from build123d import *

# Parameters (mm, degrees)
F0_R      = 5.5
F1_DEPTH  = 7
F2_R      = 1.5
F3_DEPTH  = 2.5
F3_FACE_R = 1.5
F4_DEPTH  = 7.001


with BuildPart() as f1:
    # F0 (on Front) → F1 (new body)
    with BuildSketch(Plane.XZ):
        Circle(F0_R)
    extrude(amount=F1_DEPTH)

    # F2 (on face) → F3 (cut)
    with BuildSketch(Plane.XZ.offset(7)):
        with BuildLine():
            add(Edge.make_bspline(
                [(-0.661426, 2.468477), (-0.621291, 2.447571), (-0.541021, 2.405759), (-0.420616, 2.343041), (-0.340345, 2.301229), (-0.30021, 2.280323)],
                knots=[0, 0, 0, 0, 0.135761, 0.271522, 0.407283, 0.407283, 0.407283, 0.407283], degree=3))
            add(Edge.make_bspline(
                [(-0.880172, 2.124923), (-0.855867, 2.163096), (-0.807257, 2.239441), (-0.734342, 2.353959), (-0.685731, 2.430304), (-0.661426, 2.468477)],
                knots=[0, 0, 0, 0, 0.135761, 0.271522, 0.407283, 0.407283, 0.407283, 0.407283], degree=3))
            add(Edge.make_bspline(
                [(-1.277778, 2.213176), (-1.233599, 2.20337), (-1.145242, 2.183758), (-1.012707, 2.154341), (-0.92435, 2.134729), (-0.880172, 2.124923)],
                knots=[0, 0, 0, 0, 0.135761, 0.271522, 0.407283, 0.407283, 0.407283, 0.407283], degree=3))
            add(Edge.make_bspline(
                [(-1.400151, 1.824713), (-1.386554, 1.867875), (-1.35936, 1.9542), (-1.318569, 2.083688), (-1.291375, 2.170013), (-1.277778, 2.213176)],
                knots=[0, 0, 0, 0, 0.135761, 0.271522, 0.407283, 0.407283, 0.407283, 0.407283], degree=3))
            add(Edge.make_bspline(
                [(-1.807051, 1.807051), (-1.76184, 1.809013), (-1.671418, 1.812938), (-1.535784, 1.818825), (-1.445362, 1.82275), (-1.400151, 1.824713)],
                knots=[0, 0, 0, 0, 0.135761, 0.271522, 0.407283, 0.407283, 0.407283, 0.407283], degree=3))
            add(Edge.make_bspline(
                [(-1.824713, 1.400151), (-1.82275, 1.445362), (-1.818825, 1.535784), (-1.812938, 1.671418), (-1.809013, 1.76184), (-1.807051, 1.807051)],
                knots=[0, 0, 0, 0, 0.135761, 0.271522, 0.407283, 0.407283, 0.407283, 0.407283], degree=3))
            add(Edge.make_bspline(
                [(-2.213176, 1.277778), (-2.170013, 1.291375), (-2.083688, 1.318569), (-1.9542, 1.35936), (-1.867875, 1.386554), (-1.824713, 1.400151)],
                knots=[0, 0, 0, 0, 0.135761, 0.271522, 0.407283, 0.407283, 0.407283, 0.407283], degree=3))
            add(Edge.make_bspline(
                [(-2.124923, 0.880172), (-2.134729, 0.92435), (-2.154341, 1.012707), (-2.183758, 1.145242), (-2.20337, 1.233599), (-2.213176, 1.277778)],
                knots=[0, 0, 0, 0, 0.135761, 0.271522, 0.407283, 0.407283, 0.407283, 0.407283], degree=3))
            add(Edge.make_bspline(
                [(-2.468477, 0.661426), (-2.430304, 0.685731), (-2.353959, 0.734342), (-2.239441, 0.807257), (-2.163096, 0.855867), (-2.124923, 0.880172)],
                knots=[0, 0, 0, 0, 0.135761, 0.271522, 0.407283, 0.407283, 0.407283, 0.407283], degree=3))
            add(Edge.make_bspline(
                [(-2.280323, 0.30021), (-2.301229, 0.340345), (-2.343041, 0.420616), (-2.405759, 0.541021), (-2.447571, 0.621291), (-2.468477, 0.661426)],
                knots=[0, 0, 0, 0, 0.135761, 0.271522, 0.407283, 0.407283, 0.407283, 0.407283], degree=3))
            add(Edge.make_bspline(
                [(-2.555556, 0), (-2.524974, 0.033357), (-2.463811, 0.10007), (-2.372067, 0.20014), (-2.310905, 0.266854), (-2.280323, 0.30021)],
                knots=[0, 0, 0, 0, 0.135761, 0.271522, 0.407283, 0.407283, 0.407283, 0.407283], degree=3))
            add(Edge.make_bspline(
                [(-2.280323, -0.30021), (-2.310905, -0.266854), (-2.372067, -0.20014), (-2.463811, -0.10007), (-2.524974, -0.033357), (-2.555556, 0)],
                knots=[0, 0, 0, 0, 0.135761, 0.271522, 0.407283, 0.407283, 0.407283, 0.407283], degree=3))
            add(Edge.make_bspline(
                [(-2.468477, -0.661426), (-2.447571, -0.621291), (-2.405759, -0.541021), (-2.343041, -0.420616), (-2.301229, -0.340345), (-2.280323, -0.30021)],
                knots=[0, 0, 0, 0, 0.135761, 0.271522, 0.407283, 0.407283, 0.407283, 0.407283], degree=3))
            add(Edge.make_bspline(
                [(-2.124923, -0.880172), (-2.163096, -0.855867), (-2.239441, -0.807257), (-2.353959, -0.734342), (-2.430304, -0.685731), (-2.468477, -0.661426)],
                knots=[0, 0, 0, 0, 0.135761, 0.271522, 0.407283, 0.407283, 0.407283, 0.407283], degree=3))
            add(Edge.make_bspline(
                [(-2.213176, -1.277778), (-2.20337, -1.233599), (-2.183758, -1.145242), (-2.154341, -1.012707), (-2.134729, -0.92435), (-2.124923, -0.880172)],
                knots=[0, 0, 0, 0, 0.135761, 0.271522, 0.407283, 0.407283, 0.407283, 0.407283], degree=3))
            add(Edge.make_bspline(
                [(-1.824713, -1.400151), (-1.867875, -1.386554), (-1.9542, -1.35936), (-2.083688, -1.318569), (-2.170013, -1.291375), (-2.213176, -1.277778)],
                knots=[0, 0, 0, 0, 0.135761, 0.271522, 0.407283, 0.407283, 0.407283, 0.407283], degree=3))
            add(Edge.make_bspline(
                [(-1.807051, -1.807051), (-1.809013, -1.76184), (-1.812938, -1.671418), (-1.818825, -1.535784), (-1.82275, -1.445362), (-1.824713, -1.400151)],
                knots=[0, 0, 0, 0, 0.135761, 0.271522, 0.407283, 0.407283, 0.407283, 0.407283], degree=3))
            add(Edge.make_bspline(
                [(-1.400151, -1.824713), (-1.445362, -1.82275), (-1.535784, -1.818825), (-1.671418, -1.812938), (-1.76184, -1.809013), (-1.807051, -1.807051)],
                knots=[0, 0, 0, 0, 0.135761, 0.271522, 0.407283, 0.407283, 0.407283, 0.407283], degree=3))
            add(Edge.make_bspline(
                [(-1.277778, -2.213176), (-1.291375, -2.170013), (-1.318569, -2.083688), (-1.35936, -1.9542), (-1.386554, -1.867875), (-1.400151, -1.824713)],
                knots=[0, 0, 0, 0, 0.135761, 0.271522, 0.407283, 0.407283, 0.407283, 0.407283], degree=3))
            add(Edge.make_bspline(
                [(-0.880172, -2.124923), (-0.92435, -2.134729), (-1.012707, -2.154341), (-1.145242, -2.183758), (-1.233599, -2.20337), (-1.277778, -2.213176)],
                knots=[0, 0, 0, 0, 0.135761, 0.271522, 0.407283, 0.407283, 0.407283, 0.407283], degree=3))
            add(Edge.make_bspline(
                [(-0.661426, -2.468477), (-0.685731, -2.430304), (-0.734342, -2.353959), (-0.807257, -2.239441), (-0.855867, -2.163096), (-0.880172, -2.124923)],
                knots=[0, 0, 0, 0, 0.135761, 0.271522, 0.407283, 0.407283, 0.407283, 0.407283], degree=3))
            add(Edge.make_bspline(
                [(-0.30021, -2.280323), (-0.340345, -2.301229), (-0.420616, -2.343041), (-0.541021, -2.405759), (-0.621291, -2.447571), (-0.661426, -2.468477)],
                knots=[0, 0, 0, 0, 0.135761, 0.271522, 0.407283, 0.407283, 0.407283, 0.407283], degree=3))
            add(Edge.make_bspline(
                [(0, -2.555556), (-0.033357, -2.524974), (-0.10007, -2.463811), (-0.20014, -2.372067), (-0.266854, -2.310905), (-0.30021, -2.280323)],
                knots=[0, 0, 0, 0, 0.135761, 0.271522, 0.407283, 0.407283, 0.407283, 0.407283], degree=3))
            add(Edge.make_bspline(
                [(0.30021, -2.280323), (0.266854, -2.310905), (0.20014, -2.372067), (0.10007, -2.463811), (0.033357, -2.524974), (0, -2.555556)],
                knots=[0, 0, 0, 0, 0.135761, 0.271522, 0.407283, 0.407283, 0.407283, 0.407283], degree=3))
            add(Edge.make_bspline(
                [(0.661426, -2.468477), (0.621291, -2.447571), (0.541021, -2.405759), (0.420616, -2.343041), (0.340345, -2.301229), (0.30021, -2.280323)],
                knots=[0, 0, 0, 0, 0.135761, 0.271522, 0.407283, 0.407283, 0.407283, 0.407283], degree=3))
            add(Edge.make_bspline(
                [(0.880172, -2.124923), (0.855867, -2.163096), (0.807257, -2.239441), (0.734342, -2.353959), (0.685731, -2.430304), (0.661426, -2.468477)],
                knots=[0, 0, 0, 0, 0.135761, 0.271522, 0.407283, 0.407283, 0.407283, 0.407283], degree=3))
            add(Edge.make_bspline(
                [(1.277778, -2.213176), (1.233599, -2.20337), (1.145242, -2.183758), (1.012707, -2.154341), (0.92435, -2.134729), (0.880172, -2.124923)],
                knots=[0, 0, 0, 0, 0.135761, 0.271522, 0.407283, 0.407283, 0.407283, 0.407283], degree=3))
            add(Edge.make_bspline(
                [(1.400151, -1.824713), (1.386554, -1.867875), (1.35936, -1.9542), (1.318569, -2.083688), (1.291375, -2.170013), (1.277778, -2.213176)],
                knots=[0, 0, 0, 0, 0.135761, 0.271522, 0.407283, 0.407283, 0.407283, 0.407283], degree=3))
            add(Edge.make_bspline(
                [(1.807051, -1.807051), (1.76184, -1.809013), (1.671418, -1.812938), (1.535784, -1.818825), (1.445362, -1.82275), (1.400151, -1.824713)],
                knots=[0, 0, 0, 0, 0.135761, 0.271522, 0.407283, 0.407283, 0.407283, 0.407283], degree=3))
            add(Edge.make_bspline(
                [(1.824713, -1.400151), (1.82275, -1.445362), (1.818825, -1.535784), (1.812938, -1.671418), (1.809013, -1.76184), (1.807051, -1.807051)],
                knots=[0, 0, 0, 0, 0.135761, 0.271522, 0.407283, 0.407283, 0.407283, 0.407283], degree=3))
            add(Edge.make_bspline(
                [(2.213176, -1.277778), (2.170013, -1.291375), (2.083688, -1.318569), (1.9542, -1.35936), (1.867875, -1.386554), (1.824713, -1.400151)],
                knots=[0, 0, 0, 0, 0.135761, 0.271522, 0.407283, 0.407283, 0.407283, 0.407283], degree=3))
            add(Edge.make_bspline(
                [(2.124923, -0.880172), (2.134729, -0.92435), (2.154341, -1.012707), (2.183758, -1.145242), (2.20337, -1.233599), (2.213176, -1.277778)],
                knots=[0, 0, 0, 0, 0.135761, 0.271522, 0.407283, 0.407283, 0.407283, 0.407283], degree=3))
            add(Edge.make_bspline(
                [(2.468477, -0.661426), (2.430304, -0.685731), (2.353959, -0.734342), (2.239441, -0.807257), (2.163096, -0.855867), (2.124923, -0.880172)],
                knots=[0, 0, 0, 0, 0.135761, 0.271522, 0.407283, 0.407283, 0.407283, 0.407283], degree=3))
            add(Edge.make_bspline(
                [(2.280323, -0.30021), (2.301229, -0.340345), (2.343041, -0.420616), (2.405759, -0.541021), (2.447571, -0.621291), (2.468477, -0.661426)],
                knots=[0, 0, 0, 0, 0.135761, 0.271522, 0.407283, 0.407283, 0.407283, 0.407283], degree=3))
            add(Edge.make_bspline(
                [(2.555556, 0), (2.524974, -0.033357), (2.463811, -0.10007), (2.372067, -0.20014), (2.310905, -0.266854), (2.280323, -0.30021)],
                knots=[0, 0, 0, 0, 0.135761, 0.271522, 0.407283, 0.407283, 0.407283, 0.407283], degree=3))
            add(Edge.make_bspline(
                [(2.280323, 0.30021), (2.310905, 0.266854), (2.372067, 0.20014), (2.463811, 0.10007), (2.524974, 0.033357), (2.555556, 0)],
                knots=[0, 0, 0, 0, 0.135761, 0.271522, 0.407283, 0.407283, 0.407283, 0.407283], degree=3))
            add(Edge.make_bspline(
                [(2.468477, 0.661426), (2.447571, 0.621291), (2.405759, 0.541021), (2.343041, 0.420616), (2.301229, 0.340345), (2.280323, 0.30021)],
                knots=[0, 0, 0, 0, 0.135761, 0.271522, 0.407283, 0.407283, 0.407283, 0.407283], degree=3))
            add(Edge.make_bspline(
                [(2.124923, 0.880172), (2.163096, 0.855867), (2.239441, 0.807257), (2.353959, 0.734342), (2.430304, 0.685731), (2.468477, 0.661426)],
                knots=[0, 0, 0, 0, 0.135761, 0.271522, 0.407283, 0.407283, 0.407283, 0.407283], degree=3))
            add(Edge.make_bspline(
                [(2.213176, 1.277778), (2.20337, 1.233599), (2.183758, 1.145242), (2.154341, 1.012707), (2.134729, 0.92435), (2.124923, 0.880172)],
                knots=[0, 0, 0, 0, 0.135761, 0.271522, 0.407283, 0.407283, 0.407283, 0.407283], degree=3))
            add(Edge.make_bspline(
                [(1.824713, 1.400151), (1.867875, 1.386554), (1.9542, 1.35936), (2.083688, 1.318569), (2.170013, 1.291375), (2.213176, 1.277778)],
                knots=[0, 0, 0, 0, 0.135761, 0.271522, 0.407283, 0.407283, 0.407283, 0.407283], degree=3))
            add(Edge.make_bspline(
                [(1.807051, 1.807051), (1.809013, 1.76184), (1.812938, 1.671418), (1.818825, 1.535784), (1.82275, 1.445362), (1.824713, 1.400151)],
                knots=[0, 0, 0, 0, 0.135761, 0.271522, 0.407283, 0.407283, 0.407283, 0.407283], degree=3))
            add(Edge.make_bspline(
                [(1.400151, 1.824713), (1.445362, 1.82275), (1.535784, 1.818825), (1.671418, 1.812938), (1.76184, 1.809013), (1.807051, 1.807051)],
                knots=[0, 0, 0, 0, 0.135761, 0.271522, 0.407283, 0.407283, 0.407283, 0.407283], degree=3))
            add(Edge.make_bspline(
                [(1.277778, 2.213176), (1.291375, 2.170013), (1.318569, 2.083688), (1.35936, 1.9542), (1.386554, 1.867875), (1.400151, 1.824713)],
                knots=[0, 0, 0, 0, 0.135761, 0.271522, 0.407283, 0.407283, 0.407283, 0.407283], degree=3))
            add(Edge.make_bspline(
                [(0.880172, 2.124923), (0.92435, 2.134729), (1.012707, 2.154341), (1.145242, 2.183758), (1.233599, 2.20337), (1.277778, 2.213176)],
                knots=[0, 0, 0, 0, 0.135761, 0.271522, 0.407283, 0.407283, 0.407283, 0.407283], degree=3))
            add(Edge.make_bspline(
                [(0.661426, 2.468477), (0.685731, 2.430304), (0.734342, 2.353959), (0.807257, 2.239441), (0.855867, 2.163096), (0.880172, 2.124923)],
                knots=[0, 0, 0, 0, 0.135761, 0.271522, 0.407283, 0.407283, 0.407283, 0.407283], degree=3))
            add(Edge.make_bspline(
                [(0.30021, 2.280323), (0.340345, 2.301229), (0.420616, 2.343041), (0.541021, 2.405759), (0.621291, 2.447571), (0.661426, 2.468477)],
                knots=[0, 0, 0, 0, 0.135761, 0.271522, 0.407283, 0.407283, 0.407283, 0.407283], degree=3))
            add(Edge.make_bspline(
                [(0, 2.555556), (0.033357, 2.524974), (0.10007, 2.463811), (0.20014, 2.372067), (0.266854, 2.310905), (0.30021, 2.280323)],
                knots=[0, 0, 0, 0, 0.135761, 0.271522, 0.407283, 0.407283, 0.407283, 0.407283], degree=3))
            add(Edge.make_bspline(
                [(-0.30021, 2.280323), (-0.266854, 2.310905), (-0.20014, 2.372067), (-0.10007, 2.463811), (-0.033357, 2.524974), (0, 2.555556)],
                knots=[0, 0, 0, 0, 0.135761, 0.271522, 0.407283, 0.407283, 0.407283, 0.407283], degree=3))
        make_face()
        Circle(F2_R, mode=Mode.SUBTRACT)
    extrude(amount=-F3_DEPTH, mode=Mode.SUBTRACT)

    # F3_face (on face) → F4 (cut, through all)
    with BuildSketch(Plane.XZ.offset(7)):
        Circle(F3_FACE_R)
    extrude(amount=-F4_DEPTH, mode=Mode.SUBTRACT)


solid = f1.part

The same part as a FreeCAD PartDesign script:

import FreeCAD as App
import Part
import Sketcher

doc = App.newDocument("Part")
params = doc.addObject("Spreadsheet::Sheet", "Params")
for row, (alias, value) in enumerate([
    ("sketch1_diameter", "11 mm"),
    ("pad1_length", "7 mm"),
    ("sketch2_diameter", "3 mm"),
    ("pocket1_length", "2.5 mm"),
    ("sketch3_diameter", "3 mm"),
], start=1):
    params.set(f"A{row}", alias)
    params.set(f"B{row}", "=" + value)
    params.setAlias(f"B{row}", alias)

body = doc.addObject("PartDesign::Body", "Body")

# Sketch on XZ plane
sketch1 = body.newObject("Sketcher::SketchObject", "Sketch")
sketch1.AttachmentSupport = (doc.getObject("XZ_Plane"), [""])
sketch1.MapMode = "FlatFace"
sketch1.addGeometry(Part.Circle(App.Vector(0, 0, 0), App.Vector(0, 0, 1), 6), False)
sketch1.addConstraint(Sketcher.Constraint("Coincident", 0, 3, -1, 1))
sketch1.addConstraint(Sketcher.Constraint("Diameter", 0, 11.0))
sketch1.setExpression("Constraints[1]", "Params.sketch1_diameter")
pad1 = body.newObject("PartDesign::Pad", "Pad")
pad1.Profile = sketch1
pad1.setExpression("Length", "Params.pad1_length")

# Sketch on XZ plane
sketch2 = body.newObject("Sketcher::SketchObject", "Sketch001")
sketch2.AttachmentSupport = (doc.getObject("XZ_Plane"), [""])
sketch2.MapMode = "FlatFace"
sketch2.AttachmentOffset = App.Placement(App.Vector(0, 0, 7), App.Rotation())
sketch2.addGeometry(Part.BSplineCurve([App.Vector(-0.661426, 2.468477, 0), App.Vector(-0.621291, 2.447571, 0), App.Vector(-0.541021, 2.405759, 0), App.Vector(-0.420616, 2.343041, 0), App.Vector(-0.340345, 2.301229, 0), App.Vector(-0.30021, 2.280323, 0)], [4, 1, 1, 4], [0, 0.135761, 0.271522, 0.407283], False, 3, [1, 1, 1, 1, 1, 1], False), False)
sketch2.addGeometry(Part.BSplineCurve([App.Vector(-0.880172, 2.124923, 0), App.Vector(-0.855867, 2.163096, 0), App.Vector(-0.807257, 2.239441, 0), App.Vector(-0.734342, 2.353959, 0), App.Vector(-0.685731, 2.430304, 0), App.Vector(-0.661426, 2.468477, 0)], [4, 1, 1, 4], [0, 0.135761, 0.271522, 0.407283], False, 3, [1, 1, 1, 1, 1, 1], False), False)
sketch2.addGeometry(Part.BSplineCurve([App.Vector(-1.277778, 2.213176, 0), App.Vector(-1.233599, 2.20337, 0), App.Vector(-1.145242, 2.183758, 0), App.Vector(-1.012707, 2.154341, 0), App.Vector(-0.92435, 2.134729, 0), App.Vector(-0.880172, 2.124923, 0)], [4, 1, 1, 4], [0, 0.135761, 0.271522, 0.407283], False, 3, [1, 1, 1, 1, 1, 1], False), False)
sketch2.addGeometry(Part.BSplineCurve([App.Vector(-1.400151, 1.824713, 0), App.Vector(-1.386554, 1.867875, 0), App.Vector(-1.35936, 1.9542, 0), App.Vector(-1.318569, 2.083688, 0), App.Vector(-1.291375, 2.170013, 0), App.Vector(-1.277778, 2.213176, 0)], [4, 1, 1, 4], [0, 0.135761, 0.271522, 0.407283], False, 3, [1, 1, 1, 1, 1, 1], False), False)
sketch2.addGeometry(Part.BSplineCurve([App.Vector(-1.807051, 1.807051, 0), App.Vector(-1.76184, 1.809013, 0), App.Vector(-1.671418, 1.812938, 0), App.Vector(-1.535784, 1.818825, 0), App.Vector(-1.445362, 1.82275, 0), App.Vector(-1.400151, 1.824713, 0)], [4, 1, 1, 4], [0, 0.135761, 0.271522, 0.407283], False, 3, [1, 1, 1, 1, 1, 1], False), False)
sketch2.addGeometry(Part.BSplineCurve([App.Vector(-1.824713, 1.400151, 0), App.Vector(-1.82275, 1.445362, 0), App.Vector(-1.818825, 1.535784, 0), App.Vector(-1.812938, 1.671418, 0), App.Vector(-1.809013, 1.76184, 0), App.Vector(-1.807051, 1.807051, 0)], [4, 1, 1, 4], [0, 0.135761, 0.271522, 0.407283], False, 3, [1, 1, 1, 1, 1, 1], False), False)
sketch2.addGeometry(Part.BSplineCurve([App.Vector(-2.213176, 1.277778, 0), App.Vector(-2.170013, 1.291375, 0), App.Vector(-2.083688, 1.318569, 0), App.Vector(-1.9542, 1.35936, 0), App.Vector(-1.867875, 1.386554, 0), App.Vector(-1.824713, 1.400151, 0)], [4, 1, 1, 4], [0, 0.135761, 0.271522, 0.407283], False, 3, [1, 1, 1, 1, 1, 1], False), False)
sketch2.addGeometry(Part.BSplineCurve([App.Vector(-2.124923, 0.880172, 0), App.Vector(-2.134729, 0.92435, 0), App.Vector(-2.154341, 1.012707, 0), App.Vector(-2.183758, 1.145242, 0), App.Vector(-2.20337, 1.233599, 0), App.Vector(-2.213176, 1.277778, 0)], [4, 1, 1, 4], [0, 0.135761, 0.271522, 0.407283], False, 3, [1, 1, 1, 1, 1, 1], False), False)
sketch2.addGeometry(Part.BSplineCurve([App.Vector(-2.468477, 0.661426, 0), App.Vector(-2.430304, 0.685731, 0), App.Vector(-2.353959, 0.734342, 0), App.Vector(-2.239441, 0.807257, 0), App.Vector(-2.163096, 0.855867, 0), App.Vector(-2.124923, 0.880172, 0)], [4, 1, 1, 4], [0, 0.135761, 0.271522, 0.407283], False, 3, [1, 1, 1, 1, 1, 1], False), False)
sketch2.addGeometry(Part.BSplineCurve([App.Vector(-2.280323, 0.30021, 0), App.Vector(-2.301229, 0.340345, 0), App.Vector(-2.343041, 0.420616, 0), App.Vector(-2.405759, 0.541021, 0), App.Vector(-2.447571, 0.621291, 0), App.Vector(-2.468477, 0.661426, 0)], [4, 1, 1, 4], [0, 0.135761, 0.271522, 0.407283], False, 3, [1, 1, 1, 1, 1, 1], False), False)
sketch2.addGeometry(Part.BSplineCurve([App.Vector(-2.555556, 0, 0), App.Vector(-2.524974, 0.033357, 0), App.Vector(-2.463811, 0.10007, 0), App.Vector(-2.372067, 0.20014, 0), App.Vector(-2.310905, 0.266854, 0), App.Vector(-2.280323, 0.30021, 0)], [4, 1, 1, 4], [0, 0.135761, 0.271522, 0.407283], False, 3, [1, 1, 1, 1, 1, 1], False), False)
sketch2.addGeometry(Part.BSplineCurve([App.Vector(-2.280323, -0.30021, 0), App.Vector(-2.310905, -0.266854, 0), App.Vector(-2.372067, -0.20014, 0), App.Vector(-2.463811, -0.10007, 0), App.Vector(-2.524974, -0.033357, 0), App.Vector(-2.555556, 0, 0)], [4, 1, 1, 4], [0, 0.135761, 0.271522, 0.407283], False, 3, [1, 1, 1, 1, 1, 1], False), False)
sketch2.addGeometry(Part.BSplineCurve([App.Vector(-2.468477, -0.661426, 0), App.Vector(-2.447571, -0.621291, 0), App.Vector(-2.405759, -0.541021, 0), App.Vector(-2.343041, -0.420616, 0), App.Vector(-2.301229, -0.340345, 0), App.Vector(-2.280323, -0.30021, 0)], [4, 1, 1, 4], [0, 0.135761, 0.271522, 0.407283], False, 3, [1, 1, 1, 1, 1, 1], False), False)
sketch2.addGeometry(Part.BSplineCurve([App.Vector(-2.124923, -0.880172, 0), App.Vector(-2.163096, -0.855867, 0), App.Vector(-2.239441, -0.807257, 0), App.Vector(-2.353959, -0.734342, 0), App.Vector(-2.430304, -0.685731, 0), App.Vector(-2.468477, -0.661426, 0)], [4, 1, 1, 4], [0, 0.135761, 0.271522, 0.407283], False, 3, [1, 1, 1, 1, 1, 1], False), False)
sketch2.addGeometry(Part.BSplineCurve([App.Vector(-2.213176, -1.277778, 0), App.Vector(-2.20337, -1.233599, 0), App.Vector(-2.183758, -1.145242, 0), App.Vector(-2.154341, -1.012707, 0), App.Vector(-2.134729, -0.92435, 0), App.Vector(-2.124923, -0.880172, 0)], [4, 1, 1, 4], [0, 0.135761, 0.271522, 0.407283], False, 3, [1, 1, 1, 1, 1, 1], False), False)
sketch2.addGeometry(Part.BSplineCurve([App.Vector(-1.824713, -1.400151, 0), App.Vector(-1.867875, -1.386554, 0), App.Vector(-1.9542, -1.35936, 0), App.Vector(-2.083688, -1.318569, 0), App.Vector(-2.170013, -1.291375, 0), App.Vector(-2.213176, -1.277778, 0)], [4, 1, 1, 4], [0, 0.135761, 0.271522, 0.407283], False, 3, [1, 1, 1, 1, 1, 1], False), False)
sketch2.addGeometry(Part.BSplineCurve([App.Vector(-1.807051, -1.807051, 0), App.Vector(-1.809013, -1.76184, 0), App.Vector(-1.812938, -1.671418, 0), App.Vector(-1.818825, -1.535784, 0), App.Vector(-1.82275, -1.445362, 0), App.Vector(-1.824713, -1.400151, 0)], [4, 1, 1, 4], [0, 0.135761, 0.271522, 0.407283], False, 3, [1, 1, 1, 1, 1, 1], False), False)
sketch2.addGeometry(Part.BSplineCurve([App.Vector(-1.400151, -1.824713, 0), App.Vector(-1.445362, -1.82275, 0), App.Vector(-1.535784, -1.818825, 0), App.Vector(-1.671418, -1.812938, 0), App.Vector(-1.76184, -1.809013, 0), App.Vector(-1.807051, -1.807051, 0)], [4, 1, 1, 4], [0, 0.135761, 0.271522, 0.407283], False, 3, [1, 1, 1, 1, 1, 1], False), False)
sketch2.addGeometry(Part.BSplineCurve([App.Vector(-1.277778, -2.213176, 0), App.Vector(-1.291375, -2.170013, 0), App.Vector(-1.318569, -2.083688, 0), App.Vector(-1.35936, -1.9542, 0), App.Vector(-1.386554, -1.867875, 0), App.Vector(-1.400151, -1.824713, 0)], [4, 1, 1, 4], [0, 0.135761, 0.271522, 0.407283], False, 3, [1, 1, 1, 1, 1, 1], False), False)
sketch2.addGeometry(Part.BSplineCurve([App.Vector(-0.880172, -2.124923, 0), App.Vector(-0.92435, -2.134729, 0), App.Vector(-1.012707, -2.154341, 0), App.Vector(-1.145242, -2.183758, 0), App.Vector(-1.233599, -2.20337, 0), App.Vector(-1.277778, -2.213176, 0)], [4, 1, 1, 4], [0, 0.135761, 0.271522, 0.407283], False, 3, [1, 1, 1, 1, 1, 1], False), False)
sketch2.addGeometry(Part.BSplineCurve([App.Vector(-0.661426, -2.468477, 0), App.Vector(-0.685731, -2.430304, 0), App.Vector(-0.734342, -2.353959, 0), App.Vector(-0.807257, -2.239441, 0), App.Vector(-0.855867, -2.163096, 0), App.Vector(-0.880172, -2.124923, 0)], [4, 1, 1, 4], [0, 0.135761, 0.271522, 0.407283], False, 3, [1, 1, 1, 1, 1, 1], False), False)
sketch2.addGeometry(Part.BSplineCurve([App.Vector(-0.30021, -2.280323, 0), App.Vector(-0.340345, -2.301229, 0), App.Vector(-0.420616, -2.343041, 0), App.Vector(-0.541021, -2.405759, 0), App.Vector(-0.621291, -2.447571, 0), App.Vector(-0.661426, -2.468477, 0)], [4, 1, 1, 4], [0, 0.135761, 0.271522, 0.407283], False, 3, [1, 1, 1, 1, 1, 1], False), False)
sketch2.addGeometry(Part.BSplineCurve([App.Vector(0, -2.555556, 0), App.Vector(-0.033357, -2.524974, 0), App.Vector(-0.10007, -2.463811, 0), App.Vector(-0.20014, -2.372067, 0), App.Vector(-0.266854, -2.310905, 0), App.Vector(-0.30021, -2.280323, 0)], [4, 1, 1, 4], [0, 0.135761, 0.271522, 0.407283], False, 3, [1, 1, 1, 1, 1, 1], False), False)
sketch2.addGeometry(Part.BSplineCurve([App.Vector(0.30021, -2.280323, 0), App.Vector(0.266854, -2.310905, 0), App.Vector(0.20014, -2.372067, 0), App.Vector(0.10007, -2.463811, 0), App.Vector(0.033357, -2.524974, 0), App.Vector(0, -2.555556, 0)], [4, 1, 1, 4], [0, 0.135761, 0.271522, 0.407283], False, 3, [1, 1, 1, 1, 1, 1], False), False)
sketch2.addGeometry(Part.BSplineCurve([App.Vector(0.661426, -2.468477, 0), App.Vector(0.621291, -2.447571, 0), App.Vector(0.541021, -2.405759, 0), App.Vector(0.420616, -2.343041, 0), App.Vector(0.340345, -2.301229, 0), App.Vector(0.30021, -2.280323, 0)], [4, 1, 1, 4], [0, 0.135761, 0.271522, 0.407283], False, 3, [1, 1, 1, 1, 1, 1], False), False)
sketch2.addGeometry(Part.BSplineCurve([App.Vector(0.880172, -2.124923, 0), App.Vector(0.855867, -2.163096, 0), App.Vector(0.807257, -2.239441, 0), App.Vector(0.734342, -2.353959, 0), App.Vector(0.685731, -2.430304, 0), App.Vector(0.661426, -2.468477, 0)], [4, 1, 1, 4], [0, 0.135761, 0.271522, 0.407283], False, 3, [1, 1, 1, 1, 1, 1], False), False)
sketch2.addGeometry(Part.BSplineCurve([App.Vector(1.277778, -2.213176, 0), App.Vector(1.233599, -2.20337, 0), App.Vector(1.145242, -2.183758, 0), App.Vector(1.012707, -2.154341, 0), App.Vector(0.92435, -2.134729, 0), App.Vector(0.880172, -2.124923, 0)], [4, 1, 1, 4], [0, 0.135761, 0.271522, 0.407283], False, 3, [1, 1, 1, 1, 1, 1], False), False)
sketch2.addGeometry(Part.BSplineCurve([App.Vector(1.400151, -1.824713, 0), App.Vector(1.386554, -1.867875, 0), App.Vector(1.35936, -1.9542, 0), App.Vector(1.318569, -2.083688, 0), App.Vector(1.291375, -2.170013, 0), App.Vector(1.277778, -2.213176, 0)], [4, 1, 1, 4], [0, 0.135761, 0.271522, 0.407283], False, 3, [1, 1, 1, 1, 1, 1], False), False)
sketch2.addGeometry(Part.BSplineCurve([App.Vector(1.807051, -1.807051, 0), App.Vector(1.76184, -1.809013, 0), App.Vector(1.671418, -1.812938, 0), App.Vector(1.535784, -1.818825, 0), App.Vector(1.445362, -1.82275, 0), App.Vector(1.400151, -1.824713, 0)], [4, 1, 1, 4], [0, 0.135761, 0.271522, 0.407283], False, 3, [1, 1, 1, 1, 1, 1], False), False)
sketch2.addGeometry(Part.BSplineCurve([App.Vector(1.824713, -1.400151, 0), App.Vector(1.82275, -1.445362, 0), App.Vector(1.818825, -1.535784, 0), App.Vector(1.812938, -1.671418, 0), App.Vector(1.809013, -1.76184, 0), App.Vector(1.807051, -1.807051, 0)], [4, 1, 1, 4], [0, 0.135761, 0.271522, 0.407283], False, 3, [1, 1, 1, 1, 1, 1], False), False)
sketch2.addGeometry(Part.BSplineCurve([App.Vector(2.213176, -1.277778, 0), App.Vector(2.170013, -1.291375, 0), App.Vector(2.083688, -1.318569, 0), App.Vector(1.9542, -1.35936, 0), App.Vector(1.867875, -1.386554, 0), App.Vector(1.824713, -1.400151, 0)], [4, 1, 1, 4], [0, 0.135761, 0.271522, 0.407283], False, 3, [1, 1, 1, 1, 1, 1], False), False)
sketch2.addGeometry(Part.BSplineCurve([App.Vector(2.124923, -0.880172, 0), App.Vector(2.134729, -0.92435, 0), App.Vector(2.154341, -1.012707, 0), App.Vector(2.183758, -1.145242, 0), App.Vector(2.20337, -1.233599, 0), App.Vector(2.213176, -1.277778, 0)], [4, 1, 1, 4], [0, 0.135761, 0.271522, 0.407283], False, 3, [1, 1, 1, 1, 1, 1], False), False)
sketch2.addGeometry(Part.BSplineCurve([App.Vector(2.468477, -0.661426, 0), App.Vector(2.430304, -0.685731, 0), App.Vector(2.353959, -0.734342, 0), App.Vector(2.239441, -0.807257, 0), App.Vector(2.163096, -0.855867, 0), App.Vector(2.124923, -0.880172, 0)], [4, 1, 1, 4], [0, 0.135761, 0.271522, 0.407283], False, 3, [1, 1, 1, 1, 1, 1], False), False)
sketch2.addGeometry(Part.BSplineCurve([App.Vector(2.280323, -0.30021, 0), App.Vector(2.301229, -0.340345, 0), App.Vector(2.343041, -0.420616, 0), App.Vector(2.405759, -0.541021, 0), App.Vector(2.447571, -0.621291, 0), App.Vector(2.468477, -0.661426, 0)], [4, 1, 1, 4], [0, 0.135761, 0.271522, 0.407283], False, 3, [1, 1, 1, 1, 1, 1], False), False)
sketch2.addGeometry(Part.BSplineCurve([App.Vector(2.555556, 0, 0), App.Vector(2.524974, -0.033357, 0), App.Vector(2.463811, -0.10007, 0), App.Vector(2.372067, -0.20014, 0), App.Vector(2.310905, -0.266854, 0), App.Vector(2.280323, -0.30021, 0)], [4, 1, 1, 4], [0, 0.135761, 0.271522, 0.407283], False, 3, [1, 1, 1, 1, 1, 1], False), False)
sketch2.addGeometry(Part.BSplineCurve([App.Vector(2.280323, 0.30021, 0), App.Vector(2.310905, 0.266854, 0), App.Vector(2.372067, 0.20014, 0), App.Vector(2.463811, 0.10007, 0), App.Vector(2.524974, 0.033357, 0), App.Vector(2.555556, 0, 0)], [4, 1, 1, 4], [0, 0.135761, 0.271522, 0.407283], False, 3, [1, 1, 1, 1, 1, 1], False), False)
sketch2.addGeometry(Part.BSplineCurve([App.Vector(2.468477, 0.661426, 0), App.Vector(2.447571, 0.621291, 0), App.Vector(2.405759, 0.541021, 0), App.Vector(2.343041, 0.420616, 0), App.Vector(2.301229, 0.340345, 0), App.Vector(2.280323, 0.30021, 0)], [4, 1, 1, 4], [0, 0.135761, 0.271522, 0.407283], False, 3, [1, 1, 1, 1, 1, 1], False), False)
sketch2.addGeometry(Part.BSplineCurve([App.Vector(2.124923, 0.880172, 0), App.Vector(2.163096, 0.855867, 0), App.Vector(2.239441, 0.807257, 0), App.Vector(2.353959, 0.734342, 0), App.Vector(2.430304, 0.685731, 0), App.Vector(2.468477, 0.661426, 0)], [4, 1, 1, 4], [0, 0.135761, 0.271522, 0.407283], False, 3, [1, 1, 1, 1, 1, 1], False), False)
sketch2.addGeometry(Part.BSplineCurve([App.Vector(2.213176, 1.277778, 0), App.Vector(2.20337, 1.233599, 0), App.Vector(2.183758, 1.145242, 0), App.Vector(2.154341, 1.012707, 0), App.Vector(2.134729, 0.92435, 0), App.Vector(2.124923, 0.880172, 0)], [4, 1, 1, 4], [0, 0.135761, 0.271522, 0.407283], False, 3, [1, 1, 1, 1, 1, 1], False), False)
sketch2.addGeometry(Part.BSplineCurve([App.Vector(1.824713, 1.400151, 0), App.Vector(1.867875, 1.386554, 0), App.Vector(1.9542, 1.35936, 0), App.Vector(2.083688, 1.318569, 0), App.Vector(2.170013, 1.291375, 0), App.Vector(2.213176, 1.277778, 0)], [4, 1, 1, 4], [0, 0.135761, 0.271522, 0.407283], False, 3, [1, 1, 1, 1, 1, 1], False), False)
sketch2.addGeometry(Part.BSplineCurve([App.Vector(1.807051, 1.807051, 0), App.Vector(1.809013, 1.76184, 0), App.Vector(1.812938, 1.671418, 0), App.Vector(1.818825, 1.535784, 0), App.Vector(1.82275, 1.445362, 0), App.Vector(1.824713, 1.400151, 0)], [4, 1, 1, 4], [0, 0.135761, 0.271522, 0.407283], False, 3, [1, 1, 1, 1, 1, 1], False), False)
sketch2.addGeometry(Part.BSplineCurve([App.Vector(1.400151, 1.824713, 0), App.Vector(1.445362, 1.82275, 0), App.Vector(1.535784, 1.818825, 0), App.Vector(1.671418, 1.812938, 0), App.Vector(1.76184, 1.809013, 0), App.Vector(1.807051, 1.807051, 0)], [4, 1, 1, 4], [0, 0.135761, 0.271522, 0.407283], False, 3, [1, 1, 1, 1, 1, 1], False), False)
sketch2.addGeometry(Part.BSplineCurve([App.Vector(1.277778, 2.213176, 0), App.Vector(1.291375, 2.170013, 0), App.Vector(1.318569, 2.083688, 0), App.Vector(1.35936, 1.9542, 0), App.Vector(1.386554, 1.867875, 0), App.Vector(1.400151, 1.824713, 0)], [4, 1, 1, 4], [0, 0.135761, 0.271522, 0.407283], False, 3, [1, 1, 1, 1, 1, 1], False), False)
sketch2.addGeometry(Part.BSplineCurve([App.Vector(0.880172, 2.124923, 0), App.Vector(0.92435, 2.134729, 0), App.Vector(1.012707, 2.154341, 0), App.Vector(1.145242, 2.183758, 0), App.Vector(1.233599, 2.20337, 0), App.Vector(1.277778, 2.213176, 0)], [4, 1, 1, 4], [0, 0.135761, 0.271522, 0.407283], False, 3, [1, 1, 1, 1, 1, 1], False), False)
sketch2.addGeometry(Part.BSplineCurve([App.Vector(0.661426, 2.468477, 0), App.Vector(0.685731, 2.430304, 0), App.Vector(0.734342, 2.353959, 0), App.Vector(0.807257, 2.239441, 0), App.Vector(0.855867, 2.163096, 0), App.Vector(0.880172, 2.124923, 0)], [4, 1, 1, 4], [0, 0.135761, 0.271522, 0.407283], False, 3, [1, 1, 1, 1, 1, 1], False), False)
sketch2.addGeometry(Part.BSplineCurve([App.Vector(0.30021, 2.280323, 0), App.Vector(0.340345, 2.301229, 0), App.Vector(0.420616, 2.343041, 0), App.Vector(0.541021, 2.405759, 0), App.Vector(0.621291, 2.447571, 0), App.Vector(0.661426, 2.468477, 0)], [4, 1, 1, 4], [0, 0.135761, 0.271522, 0.407283], False, 3, [1, 1, 1, 1, 1, 1], False), False)
sketch2.addGeometry(Part.BSplineCurve([App.Vector(0, 2.555556, 0), App.Vector(0.033357, 2.524974, 0), App.Vector(0.10007, 2.463811, 0), App.Vector(0.20014, 2.372067, 0), App.Vector(0.266854, 2.310905, 0), App.Vector(0.30021, 2.280323, 0)], [4, 1, 1, 4], [0, 0.135761, 0.271522, 0.407283], False, 3, [1, 1, 1, 1, 1, 1], False), False)
sketch2.addGeometry(Part.BSplineCurve([App.Vector(-0.30021, 2.280323, 0), App.Vector(-0.266854, 2.310905, 0), App.Vector(-0.20014, 2.372067, 0), App.Vector(-0.10007, 2.463811, 0), App.Vector(-0.033357, 2.524974, 0), App.Vector(0, 2.555556, 0)], [4, 1, 1, 4], [0, 0.135761, 0.271522, 0.407283], False, 3, [1, 1, 1, 1, 1, 1], False), False)
sketch2.addGeometry(Part.Circle(App.Vector(0, 0, 0), App.Vector(0, 0, 1), 1.5), False)
sketch2.addConstraint(Sketcher.Constraint("Block", 0))
sketch2.addConstraint(Sketcher.Constraint("Block", 1))
sketch2.addConstraint(Sketcher.Constraint("Block", 2))
sketch2.addConstraint(Sketcher.Constraint("Block", 3))
sketch2.addConstraint(Sketcher.Constraint("Block", 4))
sketch2.addConstraint(Sketcher.Constraint("Block", 5))
sketch2.addConstraint(Sketcher.Constraint("Block", 6))
sketch2.addConstraint(Sketcher.Constraint("Block", 7))
sketch2.addConstraint(Sketcher.Constraint("Block", 8))
sketch2.addConstraint(Sketcher.Constraint("Block", 9))
sketch2.addConstraint(Sketcher.Constraint("Block", 10))
sketch2.addConstraint(Sketcher.Constraint("Block", 11))
sketch2.addConstraint(Sketcher.Constraint("Block", 12))
sketch2.addConstraint(Sketcher.Constraint("Block", 13))
sketch2.addConstraint(Sketcher.Constraint("Block", 14))
sketch2.addConstraint(Sketcher.Constraint("Block", 15))
sketch2.addConstraint(Sketcher.Constraint("Block", 16))
sketch2.addConstraint(Sketcher.Constraint("Block", 17))
sketch2.addConstraint(Sketcher.Constraint("Block", 18))
sketch2.addConstraint(Sketcher.Constraint("Block", 19))
sketch2.addConstraint(Sketcher.Constraint("Block", 20))
sketch2.addConstraint(Sketcher.Constraint("Block", 21))
sketch2.addConstraint(Sketcher.Constraint("Block", 22))
sketch2.addConstraint(Sketcher.Constraint("Block", 23))
sketch2.addConstraint(Sketcher.Constraint("Block", 24))
sketch2.addConstraint(Sketcher.Constraint("Block", 25))
sketch2.addConstraint(Sketcher.Constraint("Block", 26))
sketch2.addConstraint(Sketcher.Constraint("Block", 27))
sketch2.addConstraint(Sketcher.Constraint("Block", 28))
sketch2.addConstraint(Sketcher.Constraint("Block", 29))
sketch2.addConstraint(Sketcher.Constraint("Block", 30))
sketch2.addConstraint(Sketcher.Constraint("Block", 31))
sketch2.addConstraint(Sketcher.Constraint("Block", 32))
sketch2.addConstraint(Sketcher.Constraint("Block", 33))
sketch2.addConstraint(Sketcher.Constraint("Block", 34))
sketch2.addConstraint(Sketcher.Constraint("Block", 35))
sketch2.addConstraint(Sketcher.Constraint("Block", 36))
sketch2.addConstraint(Sketcher.Constraint("Block", 37))
sketch2.addConstraint(Sketcher.Constraint("Block", 38))
sketch2.addConstraint(Sketcher.Constraint("Block", 39))
sketch2.addConstraint(Sketcher.Constraint("Block", 40))
sketch2.addConstraint(Sketcher.Constraint("Block", 41))
sketch2.addConstraint(Sketcher.Constraint("Block", 42))
sketch2.addConstraint(Sketcher.Constraint("Block", 43))
sketch2.addConstraint(Sketcher.Constraint("Block", 44))
sketch2.addConstraint(Sketcher.Constraint("Block", 45))
sketch2.addConstraint(Sketcher.Constraint("Block", 46))
sketch2.addConstraint(Sketcher.Constraint("Block", 47))
sketch2.addConstraint(Sketcher.Constraint("Coincident", 48, 3, -1, 1))
sketch2.addConstraint(Sketcher.Constraint("Diameter", 48, 3.0))
sketch2.setExpression("Constraints[49]", "Params.sketch2_diameter")
pocket1 = body.newObject("PartDesign::Pocket", "Pocket")
pocket1.Profile = sketch2
pocket1.setExpression("Length", "Params.pocket1_length")

# Sketch on XZ plane
sketch3 = body.newObject("Sketcher::SketchObject", "Sketch002")
sketch3.AttachmentSupport = (doc.getObject("XZ_Plane"), [""])
sketch3.MapMode = "FlatFace"
sketch3.AttachmentOffset = App.Placement(App.Vector(0, 0, 7), App.Rotation())
sketch3.addGeometry(Part.Circle(App.Vector(0, 0, 0), App.Vector(0, 0, 1), 1.5), False)
sketch3.addConstraint(Sketcher.Constraint("Coincident", 0, 3, -1, 1))
sketch3.addConstraint(Sketcher.Constraint("Diameter", 0, 3.0))
sketch3.setExpression("Constraints[1]", "Params.sketch3_diameter")
pocket2 = body.newObject("PartDesign::Pocket", "Pocket001")
pocket2.Profile = sketch3
pocket2.Type = "ThroughAll"

doc.recompute()
